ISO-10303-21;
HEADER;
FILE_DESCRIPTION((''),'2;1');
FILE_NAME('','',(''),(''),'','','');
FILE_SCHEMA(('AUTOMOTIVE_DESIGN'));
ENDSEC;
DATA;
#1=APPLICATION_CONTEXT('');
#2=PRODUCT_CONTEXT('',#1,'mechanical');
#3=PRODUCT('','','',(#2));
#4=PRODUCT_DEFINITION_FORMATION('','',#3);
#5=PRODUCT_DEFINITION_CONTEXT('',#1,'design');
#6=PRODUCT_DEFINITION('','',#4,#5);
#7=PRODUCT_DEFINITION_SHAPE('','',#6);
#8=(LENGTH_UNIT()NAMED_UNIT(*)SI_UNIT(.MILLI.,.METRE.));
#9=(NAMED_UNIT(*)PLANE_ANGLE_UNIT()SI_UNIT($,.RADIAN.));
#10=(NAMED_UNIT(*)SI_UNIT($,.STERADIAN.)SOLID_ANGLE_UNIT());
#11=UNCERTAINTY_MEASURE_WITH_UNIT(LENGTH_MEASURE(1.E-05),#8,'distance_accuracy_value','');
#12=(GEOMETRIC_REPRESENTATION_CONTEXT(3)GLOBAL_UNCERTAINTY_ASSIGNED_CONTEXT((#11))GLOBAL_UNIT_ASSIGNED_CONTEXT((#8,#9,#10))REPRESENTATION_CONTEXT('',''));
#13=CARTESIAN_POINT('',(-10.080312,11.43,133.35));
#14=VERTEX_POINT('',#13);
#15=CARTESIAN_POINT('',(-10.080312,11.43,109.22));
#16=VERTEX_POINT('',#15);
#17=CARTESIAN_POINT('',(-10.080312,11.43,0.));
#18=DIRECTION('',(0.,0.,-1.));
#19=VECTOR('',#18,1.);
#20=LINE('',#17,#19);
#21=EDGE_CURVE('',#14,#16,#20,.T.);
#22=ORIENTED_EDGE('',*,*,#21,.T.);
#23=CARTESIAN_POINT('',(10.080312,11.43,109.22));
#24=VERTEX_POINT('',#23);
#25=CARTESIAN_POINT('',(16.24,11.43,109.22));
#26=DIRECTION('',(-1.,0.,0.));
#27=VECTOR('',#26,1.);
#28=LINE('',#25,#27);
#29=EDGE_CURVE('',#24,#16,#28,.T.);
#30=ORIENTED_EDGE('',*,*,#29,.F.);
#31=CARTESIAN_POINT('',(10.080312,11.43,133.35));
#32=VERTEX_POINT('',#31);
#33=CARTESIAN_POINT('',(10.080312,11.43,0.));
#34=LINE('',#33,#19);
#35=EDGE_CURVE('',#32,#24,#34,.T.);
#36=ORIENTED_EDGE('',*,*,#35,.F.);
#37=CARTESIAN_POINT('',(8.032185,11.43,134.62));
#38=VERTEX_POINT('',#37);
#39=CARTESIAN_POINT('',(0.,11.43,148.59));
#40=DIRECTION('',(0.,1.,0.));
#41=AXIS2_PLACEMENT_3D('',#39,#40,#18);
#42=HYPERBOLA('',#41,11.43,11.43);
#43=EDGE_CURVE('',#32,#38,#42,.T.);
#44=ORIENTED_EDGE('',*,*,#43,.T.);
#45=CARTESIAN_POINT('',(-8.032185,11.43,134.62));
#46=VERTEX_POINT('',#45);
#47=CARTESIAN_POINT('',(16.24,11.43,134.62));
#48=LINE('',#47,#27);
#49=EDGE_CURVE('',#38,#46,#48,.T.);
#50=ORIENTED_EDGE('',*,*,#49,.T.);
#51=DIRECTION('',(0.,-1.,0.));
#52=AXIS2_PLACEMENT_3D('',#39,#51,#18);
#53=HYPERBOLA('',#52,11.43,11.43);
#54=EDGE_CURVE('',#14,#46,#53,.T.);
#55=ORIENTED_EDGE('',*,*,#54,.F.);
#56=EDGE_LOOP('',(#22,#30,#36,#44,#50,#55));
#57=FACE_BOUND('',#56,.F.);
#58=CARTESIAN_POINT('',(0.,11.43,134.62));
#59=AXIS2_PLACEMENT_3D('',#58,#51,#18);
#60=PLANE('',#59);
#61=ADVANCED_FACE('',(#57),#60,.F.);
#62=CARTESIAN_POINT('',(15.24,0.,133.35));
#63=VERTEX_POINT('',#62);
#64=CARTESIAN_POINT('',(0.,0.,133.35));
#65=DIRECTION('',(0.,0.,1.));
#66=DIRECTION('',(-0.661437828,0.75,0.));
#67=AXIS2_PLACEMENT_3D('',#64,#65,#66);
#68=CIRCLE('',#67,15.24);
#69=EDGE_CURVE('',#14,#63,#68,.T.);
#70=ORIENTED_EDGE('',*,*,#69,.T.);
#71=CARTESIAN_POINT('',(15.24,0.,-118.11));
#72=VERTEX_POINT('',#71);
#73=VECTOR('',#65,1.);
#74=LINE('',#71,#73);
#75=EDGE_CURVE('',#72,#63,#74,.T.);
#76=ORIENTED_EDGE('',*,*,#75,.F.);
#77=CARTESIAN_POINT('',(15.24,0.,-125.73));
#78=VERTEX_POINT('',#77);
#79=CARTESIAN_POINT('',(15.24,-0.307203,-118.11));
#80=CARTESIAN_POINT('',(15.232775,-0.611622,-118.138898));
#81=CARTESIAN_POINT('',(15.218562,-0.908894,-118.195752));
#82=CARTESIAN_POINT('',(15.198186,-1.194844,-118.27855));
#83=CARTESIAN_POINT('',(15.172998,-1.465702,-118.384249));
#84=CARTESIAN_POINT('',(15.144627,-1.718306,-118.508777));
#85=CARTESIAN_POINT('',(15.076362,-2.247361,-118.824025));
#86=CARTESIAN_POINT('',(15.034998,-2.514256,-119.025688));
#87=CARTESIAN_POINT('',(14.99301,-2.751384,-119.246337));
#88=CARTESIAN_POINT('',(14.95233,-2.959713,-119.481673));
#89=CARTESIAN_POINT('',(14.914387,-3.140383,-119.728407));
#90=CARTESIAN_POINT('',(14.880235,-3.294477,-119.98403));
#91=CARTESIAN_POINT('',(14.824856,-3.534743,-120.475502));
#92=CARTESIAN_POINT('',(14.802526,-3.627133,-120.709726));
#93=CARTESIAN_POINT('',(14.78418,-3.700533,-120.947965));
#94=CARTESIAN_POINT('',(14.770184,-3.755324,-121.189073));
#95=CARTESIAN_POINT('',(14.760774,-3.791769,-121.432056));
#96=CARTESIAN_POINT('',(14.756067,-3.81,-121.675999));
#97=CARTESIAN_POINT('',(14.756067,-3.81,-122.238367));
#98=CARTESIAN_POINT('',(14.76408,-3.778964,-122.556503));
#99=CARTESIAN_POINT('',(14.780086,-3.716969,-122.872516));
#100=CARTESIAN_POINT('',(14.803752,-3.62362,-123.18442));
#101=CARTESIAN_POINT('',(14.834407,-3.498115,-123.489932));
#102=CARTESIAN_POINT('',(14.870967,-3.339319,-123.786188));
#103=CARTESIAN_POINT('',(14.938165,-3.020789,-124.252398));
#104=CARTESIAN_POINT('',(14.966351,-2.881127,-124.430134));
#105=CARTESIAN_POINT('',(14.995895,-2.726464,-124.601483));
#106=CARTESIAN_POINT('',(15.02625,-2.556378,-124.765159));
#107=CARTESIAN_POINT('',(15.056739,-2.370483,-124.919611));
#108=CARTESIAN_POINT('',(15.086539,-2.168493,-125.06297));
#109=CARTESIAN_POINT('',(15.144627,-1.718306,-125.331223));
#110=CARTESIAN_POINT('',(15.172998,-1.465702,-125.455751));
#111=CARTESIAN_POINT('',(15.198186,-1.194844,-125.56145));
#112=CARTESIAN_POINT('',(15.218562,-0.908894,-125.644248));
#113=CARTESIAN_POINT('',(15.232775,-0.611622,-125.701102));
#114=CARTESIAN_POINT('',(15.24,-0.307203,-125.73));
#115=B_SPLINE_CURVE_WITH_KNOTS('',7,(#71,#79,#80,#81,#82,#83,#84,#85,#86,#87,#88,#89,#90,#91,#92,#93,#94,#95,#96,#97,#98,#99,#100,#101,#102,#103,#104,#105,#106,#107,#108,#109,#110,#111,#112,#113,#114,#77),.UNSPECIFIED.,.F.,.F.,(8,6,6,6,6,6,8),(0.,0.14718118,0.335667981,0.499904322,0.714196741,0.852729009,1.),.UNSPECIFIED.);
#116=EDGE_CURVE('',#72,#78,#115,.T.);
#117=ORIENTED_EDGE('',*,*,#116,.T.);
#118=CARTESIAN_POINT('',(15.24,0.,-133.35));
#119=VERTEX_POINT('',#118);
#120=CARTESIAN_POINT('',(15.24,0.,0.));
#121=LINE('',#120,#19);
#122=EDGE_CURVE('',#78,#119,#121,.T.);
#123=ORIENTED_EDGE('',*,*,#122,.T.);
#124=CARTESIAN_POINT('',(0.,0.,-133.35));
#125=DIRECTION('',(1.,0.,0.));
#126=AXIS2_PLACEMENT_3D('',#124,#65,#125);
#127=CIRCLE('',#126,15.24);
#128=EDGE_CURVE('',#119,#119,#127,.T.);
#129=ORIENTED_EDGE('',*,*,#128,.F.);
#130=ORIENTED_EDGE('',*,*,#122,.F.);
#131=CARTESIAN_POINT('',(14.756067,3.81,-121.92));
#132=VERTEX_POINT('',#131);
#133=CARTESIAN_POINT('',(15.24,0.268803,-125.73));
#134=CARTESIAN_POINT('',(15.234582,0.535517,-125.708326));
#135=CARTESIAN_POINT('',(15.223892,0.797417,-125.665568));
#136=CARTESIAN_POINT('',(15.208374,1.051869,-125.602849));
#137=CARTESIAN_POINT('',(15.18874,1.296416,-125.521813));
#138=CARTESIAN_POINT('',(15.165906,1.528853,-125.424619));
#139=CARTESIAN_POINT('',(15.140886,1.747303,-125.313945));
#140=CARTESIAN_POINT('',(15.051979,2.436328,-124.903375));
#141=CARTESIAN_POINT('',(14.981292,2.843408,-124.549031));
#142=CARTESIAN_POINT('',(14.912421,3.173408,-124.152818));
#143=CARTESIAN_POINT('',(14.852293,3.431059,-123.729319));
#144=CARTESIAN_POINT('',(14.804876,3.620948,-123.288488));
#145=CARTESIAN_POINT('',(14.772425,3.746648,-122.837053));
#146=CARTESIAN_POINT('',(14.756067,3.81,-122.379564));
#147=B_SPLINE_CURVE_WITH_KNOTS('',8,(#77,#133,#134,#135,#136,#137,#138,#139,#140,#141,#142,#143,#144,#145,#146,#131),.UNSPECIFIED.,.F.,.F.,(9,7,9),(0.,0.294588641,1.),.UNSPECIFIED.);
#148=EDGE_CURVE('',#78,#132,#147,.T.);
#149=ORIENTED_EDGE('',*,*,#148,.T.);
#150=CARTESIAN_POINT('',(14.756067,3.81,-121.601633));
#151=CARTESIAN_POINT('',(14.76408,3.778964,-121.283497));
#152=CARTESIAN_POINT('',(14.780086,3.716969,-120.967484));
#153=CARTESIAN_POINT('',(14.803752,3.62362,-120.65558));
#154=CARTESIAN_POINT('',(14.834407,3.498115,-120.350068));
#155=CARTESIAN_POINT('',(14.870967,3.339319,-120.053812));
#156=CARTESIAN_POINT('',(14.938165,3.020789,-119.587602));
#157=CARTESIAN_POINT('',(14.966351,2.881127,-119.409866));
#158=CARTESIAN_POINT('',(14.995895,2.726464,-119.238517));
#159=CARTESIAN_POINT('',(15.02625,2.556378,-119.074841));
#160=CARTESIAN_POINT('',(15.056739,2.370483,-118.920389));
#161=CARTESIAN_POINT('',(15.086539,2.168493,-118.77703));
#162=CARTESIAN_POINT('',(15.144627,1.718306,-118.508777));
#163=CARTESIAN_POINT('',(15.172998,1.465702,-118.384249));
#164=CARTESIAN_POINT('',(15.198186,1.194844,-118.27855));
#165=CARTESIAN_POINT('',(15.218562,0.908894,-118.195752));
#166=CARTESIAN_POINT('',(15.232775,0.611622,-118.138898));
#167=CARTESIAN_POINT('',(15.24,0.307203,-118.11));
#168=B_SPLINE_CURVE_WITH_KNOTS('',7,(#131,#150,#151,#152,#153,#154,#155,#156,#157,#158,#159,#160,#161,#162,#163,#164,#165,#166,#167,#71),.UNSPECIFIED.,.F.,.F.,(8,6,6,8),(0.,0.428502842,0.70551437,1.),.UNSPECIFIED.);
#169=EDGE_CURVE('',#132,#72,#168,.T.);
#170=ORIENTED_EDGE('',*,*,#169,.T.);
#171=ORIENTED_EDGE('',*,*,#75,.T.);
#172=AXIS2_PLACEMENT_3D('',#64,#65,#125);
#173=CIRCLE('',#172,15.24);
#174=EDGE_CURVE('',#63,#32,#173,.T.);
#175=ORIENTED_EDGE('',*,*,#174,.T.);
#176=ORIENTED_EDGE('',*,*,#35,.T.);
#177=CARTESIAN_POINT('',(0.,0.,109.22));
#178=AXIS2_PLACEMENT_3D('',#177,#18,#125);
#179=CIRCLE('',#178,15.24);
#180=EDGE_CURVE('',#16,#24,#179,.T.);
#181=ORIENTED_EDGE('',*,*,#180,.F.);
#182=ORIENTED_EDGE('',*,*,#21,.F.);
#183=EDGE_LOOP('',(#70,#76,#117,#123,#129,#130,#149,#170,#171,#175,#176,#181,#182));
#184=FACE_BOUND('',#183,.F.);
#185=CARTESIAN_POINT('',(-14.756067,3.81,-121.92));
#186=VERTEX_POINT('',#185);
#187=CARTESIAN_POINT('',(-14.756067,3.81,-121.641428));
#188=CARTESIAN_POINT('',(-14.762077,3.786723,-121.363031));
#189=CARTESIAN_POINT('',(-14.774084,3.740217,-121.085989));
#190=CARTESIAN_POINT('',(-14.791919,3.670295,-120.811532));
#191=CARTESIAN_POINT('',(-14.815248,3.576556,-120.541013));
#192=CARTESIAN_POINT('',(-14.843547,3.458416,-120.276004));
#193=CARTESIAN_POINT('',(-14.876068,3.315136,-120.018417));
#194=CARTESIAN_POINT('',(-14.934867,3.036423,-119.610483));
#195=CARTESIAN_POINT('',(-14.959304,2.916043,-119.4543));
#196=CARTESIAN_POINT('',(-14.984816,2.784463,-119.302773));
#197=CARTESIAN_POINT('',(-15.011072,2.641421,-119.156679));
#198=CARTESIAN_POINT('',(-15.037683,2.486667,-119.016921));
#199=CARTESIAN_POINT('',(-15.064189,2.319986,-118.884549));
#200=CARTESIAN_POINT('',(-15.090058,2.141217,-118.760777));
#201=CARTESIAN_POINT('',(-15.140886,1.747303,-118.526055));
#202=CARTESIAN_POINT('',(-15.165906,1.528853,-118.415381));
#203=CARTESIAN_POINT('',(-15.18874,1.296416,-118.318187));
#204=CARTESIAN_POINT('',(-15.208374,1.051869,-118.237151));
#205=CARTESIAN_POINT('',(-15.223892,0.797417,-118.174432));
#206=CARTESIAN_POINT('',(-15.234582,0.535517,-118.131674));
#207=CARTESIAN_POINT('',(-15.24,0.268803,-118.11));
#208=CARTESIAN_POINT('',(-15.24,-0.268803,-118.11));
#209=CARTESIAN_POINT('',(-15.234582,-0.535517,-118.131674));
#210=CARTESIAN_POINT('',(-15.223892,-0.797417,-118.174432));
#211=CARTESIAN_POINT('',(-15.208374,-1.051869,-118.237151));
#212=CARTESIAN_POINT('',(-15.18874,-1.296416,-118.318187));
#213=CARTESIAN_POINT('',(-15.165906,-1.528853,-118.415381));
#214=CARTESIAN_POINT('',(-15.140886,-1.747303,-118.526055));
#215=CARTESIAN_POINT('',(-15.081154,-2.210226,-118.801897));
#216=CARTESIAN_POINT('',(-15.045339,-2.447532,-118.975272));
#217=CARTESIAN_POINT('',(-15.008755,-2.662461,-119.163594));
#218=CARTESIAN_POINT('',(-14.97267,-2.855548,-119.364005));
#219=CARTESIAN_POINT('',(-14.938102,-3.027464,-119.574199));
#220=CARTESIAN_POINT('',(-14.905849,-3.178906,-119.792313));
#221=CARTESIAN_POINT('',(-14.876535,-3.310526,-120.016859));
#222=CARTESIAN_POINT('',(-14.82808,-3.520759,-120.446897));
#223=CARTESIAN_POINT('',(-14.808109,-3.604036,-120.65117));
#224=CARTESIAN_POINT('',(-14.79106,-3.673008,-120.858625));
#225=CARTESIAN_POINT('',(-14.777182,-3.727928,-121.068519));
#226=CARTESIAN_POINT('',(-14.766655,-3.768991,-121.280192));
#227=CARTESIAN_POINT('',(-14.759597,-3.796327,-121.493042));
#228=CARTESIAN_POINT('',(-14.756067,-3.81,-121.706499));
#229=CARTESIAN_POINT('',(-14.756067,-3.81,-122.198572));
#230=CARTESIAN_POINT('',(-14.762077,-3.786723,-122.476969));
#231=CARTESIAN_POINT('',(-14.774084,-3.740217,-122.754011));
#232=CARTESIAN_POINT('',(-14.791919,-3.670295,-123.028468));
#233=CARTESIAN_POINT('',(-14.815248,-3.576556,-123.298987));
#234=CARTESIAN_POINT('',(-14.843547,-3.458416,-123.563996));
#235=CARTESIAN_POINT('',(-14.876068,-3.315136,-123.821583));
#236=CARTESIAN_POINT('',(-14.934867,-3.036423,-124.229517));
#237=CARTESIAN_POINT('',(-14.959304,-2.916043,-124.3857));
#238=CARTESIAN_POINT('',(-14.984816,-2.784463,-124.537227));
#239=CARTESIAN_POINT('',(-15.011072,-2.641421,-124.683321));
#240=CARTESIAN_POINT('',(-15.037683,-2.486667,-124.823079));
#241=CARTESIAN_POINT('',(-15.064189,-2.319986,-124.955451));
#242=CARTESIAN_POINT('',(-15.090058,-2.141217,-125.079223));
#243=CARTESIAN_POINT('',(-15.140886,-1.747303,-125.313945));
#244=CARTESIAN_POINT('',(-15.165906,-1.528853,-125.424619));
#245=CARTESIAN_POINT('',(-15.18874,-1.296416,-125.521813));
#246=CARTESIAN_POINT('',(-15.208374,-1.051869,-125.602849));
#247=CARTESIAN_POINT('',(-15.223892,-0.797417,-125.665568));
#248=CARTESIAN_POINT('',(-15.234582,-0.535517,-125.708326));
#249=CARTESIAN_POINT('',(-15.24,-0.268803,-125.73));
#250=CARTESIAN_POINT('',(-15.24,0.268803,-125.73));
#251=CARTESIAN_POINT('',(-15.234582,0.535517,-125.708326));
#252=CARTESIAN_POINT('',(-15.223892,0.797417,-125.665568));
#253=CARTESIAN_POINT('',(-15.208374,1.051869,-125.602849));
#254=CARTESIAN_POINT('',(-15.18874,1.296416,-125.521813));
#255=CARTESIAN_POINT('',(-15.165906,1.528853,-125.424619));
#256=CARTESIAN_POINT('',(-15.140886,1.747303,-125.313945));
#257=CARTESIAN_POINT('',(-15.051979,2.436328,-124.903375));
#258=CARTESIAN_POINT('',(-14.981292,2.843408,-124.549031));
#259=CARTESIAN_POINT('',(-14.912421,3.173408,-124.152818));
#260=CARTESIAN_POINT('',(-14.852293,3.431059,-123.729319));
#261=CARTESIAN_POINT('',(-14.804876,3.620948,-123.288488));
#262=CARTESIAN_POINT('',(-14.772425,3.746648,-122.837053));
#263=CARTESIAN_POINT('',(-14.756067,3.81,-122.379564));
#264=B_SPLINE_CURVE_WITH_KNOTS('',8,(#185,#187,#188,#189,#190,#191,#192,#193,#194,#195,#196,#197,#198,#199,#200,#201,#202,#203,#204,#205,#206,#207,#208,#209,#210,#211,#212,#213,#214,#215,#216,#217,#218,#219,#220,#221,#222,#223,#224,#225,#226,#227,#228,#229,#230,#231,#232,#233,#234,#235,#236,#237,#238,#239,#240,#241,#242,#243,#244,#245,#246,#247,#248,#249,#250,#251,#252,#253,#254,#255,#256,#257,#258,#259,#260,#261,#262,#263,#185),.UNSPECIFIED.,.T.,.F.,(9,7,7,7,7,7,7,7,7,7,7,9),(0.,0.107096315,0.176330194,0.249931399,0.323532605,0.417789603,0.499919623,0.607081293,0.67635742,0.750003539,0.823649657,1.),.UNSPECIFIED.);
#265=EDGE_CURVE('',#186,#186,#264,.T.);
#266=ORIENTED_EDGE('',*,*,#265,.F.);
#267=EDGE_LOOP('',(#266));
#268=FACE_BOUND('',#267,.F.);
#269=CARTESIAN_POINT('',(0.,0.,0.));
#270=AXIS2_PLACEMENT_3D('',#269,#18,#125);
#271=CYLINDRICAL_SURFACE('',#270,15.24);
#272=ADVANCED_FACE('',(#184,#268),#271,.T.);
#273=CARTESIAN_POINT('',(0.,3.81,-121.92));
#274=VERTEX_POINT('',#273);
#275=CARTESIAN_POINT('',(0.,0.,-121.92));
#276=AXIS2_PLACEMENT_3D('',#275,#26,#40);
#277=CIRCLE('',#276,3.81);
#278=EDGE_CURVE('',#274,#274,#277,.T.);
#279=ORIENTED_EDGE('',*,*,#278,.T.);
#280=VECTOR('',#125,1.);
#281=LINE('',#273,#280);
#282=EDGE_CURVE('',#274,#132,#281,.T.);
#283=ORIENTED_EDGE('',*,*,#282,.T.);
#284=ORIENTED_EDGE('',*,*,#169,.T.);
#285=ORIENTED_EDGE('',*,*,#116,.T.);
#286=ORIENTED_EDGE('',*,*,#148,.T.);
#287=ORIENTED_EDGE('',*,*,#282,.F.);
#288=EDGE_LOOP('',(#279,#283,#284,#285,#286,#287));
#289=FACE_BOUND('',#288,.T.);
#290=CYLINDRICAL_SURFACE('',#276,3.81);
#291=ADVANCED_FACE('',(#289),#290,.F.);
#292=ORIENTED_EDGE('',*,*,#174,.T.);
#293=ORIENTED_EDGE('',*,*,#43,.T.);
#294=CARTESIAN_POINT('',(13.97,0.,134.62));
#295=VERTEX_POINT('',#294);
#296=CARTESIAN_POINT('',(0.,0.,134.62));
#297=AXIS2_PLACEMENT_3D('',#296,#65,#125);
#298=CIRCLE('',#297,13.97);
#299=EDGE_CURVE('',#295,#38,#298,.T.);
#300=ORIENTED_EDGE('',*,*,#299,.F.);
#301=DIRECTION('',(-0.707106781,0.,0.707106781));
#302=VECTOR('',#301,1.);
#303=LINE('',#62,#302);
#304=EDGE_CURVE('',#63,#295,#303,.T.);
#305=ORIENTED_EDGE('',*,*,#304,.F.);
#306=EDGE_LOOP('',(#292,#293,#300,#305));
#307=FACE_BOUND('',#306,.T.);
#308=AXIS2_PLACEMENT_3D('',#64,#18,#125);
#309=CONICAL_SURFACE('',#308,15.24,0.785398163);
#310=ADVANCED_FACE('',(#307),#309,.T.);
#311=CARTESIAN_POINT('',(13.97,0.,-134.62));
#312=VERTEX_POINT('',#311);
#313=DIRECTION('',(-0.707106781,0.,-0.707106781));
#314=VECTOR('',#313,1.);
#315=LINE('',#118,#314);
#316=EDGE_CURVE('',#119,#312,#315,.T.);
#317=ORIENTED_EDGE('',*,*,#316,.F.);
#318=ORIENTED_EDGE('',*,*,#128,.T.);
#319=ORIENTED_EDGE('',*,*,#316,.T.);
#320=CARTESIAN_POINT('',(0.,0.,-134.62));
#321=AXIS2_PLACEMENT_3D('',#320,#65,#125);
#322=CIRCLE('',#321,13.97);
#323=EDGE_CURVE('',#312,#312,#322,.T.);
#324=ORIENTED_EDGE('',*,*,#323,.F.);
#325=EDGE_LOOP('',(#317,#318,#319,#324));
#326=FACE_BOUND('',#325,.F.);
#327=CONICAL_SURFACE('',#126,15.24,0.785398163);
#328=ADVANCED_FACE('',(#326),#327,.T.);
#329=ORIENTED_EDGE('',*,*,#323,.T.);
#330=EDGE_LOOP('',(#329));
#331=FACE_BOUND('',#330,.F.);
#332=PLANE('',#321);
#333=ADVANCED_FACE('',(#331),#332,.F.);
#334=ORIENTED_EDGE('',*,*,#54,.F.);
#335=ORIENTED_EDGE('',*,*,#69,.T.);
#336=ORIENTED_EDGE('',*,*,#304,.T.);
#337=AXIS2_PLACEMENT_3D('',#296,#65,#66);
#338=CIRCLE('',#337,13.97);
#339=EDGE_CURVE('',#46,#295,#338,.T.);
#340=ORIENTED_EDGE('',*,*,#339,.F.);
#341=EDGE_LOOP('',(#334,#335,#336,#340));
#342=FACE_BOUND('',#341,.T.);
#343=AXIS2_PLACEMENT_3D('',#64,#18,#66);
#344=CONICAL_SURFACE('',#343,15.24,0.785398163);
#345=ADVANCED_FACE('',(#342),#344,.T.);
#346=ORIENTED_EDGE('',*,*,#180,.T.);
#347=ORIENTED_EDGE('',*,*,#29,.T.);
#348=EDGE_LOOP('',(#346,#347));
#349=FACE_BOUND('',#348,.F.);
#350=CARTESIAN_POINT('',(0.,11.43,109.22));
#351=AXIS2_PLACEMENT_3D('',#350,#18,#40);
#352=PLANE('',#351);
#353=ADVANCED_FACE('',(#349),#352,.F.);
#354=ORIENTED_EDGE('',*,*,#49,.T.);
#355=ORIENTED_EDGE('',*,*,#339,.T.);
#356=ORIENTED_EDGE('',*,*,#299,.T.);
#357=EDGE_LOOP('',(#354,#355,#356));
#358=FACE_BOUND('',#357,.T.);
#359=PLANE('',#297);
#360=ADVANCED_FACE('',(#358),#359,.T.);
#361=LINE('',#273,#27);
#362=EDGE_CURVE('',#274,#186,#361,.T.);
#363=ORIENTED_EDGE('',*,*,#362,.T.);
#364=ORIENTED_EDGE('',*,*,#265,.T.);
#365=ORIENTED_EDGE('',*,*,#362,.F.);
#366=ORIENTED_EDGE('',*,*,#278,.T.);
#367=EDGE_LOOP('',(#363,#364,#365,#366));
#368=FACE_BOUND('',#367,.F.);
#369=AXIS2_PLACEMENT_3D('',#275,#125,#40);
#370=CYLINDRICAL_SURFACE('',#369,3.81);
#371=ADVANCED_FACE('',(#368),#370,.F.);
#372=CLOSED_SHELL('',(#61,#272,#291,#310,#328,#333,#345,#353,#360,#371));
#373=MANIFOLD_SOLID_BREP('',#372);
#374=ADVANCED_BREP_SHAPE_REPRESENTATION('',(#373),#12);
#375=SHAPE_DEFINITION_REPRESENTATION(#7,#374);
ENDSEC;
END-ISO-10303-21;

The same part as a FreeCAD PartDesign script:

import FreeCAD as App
import Part
import Sketcher

V = App.Vector
Q = App.Units.Quantity


def edges_at(feature, points):
    """Names of the edges that pass closest to the given points."""
    edges = feature.Shape.Edges
    near = lambda p: min(range(len(edges)), key=lambda i: edges[i].distToShape(Part.Vertex(*p))[0])
    return sorted({f"Edge{near(p) + 1}" for p in points})


def add_polygon(sketch, points):
    """Adds a closed chain of lines whose ends are joined by coincident constraints."""
    first, n = sketch.GeometryCount, len(points)
    for a, b in zip(points, points[1:] + points[:1]):
        sketch.addGeometry(Part.LineSegment(App.Vector(*a, 0), App.Vector(*b, 0)), False)
    for i in range(n):
        sketch.addConstraint(Sketcher.Constraint("Coincident", first + i, 2, first + (i + 1) % n, 1))

doc = App.newDocument("Part")
body = doc.addObject("PartDesign::Body", "Body")

# Sketch on XY plane
sketch1 = body.newObject("Sketcher::SketchObject", "Sketch")
sketch1.AttachmentSupport = (doc.getObject("XY_Plane"), [""])
sketch1.MapMode = "FlatFace"
sketch1.addGeometry(Part.Circle(V(0, 0, 0), V(0, 0, 1), 15), False)
sketch1.addConstraint([
    Sketcher.Constraint("Coincident", 0, 3, -1, 1),
    Sketcher.Constraint("Diameter", 0, Q("1.2 in")),
])
pad1 = body.newObject("PartDesign::Pad", "Pad")
pad1.Profile = sketch1
pad1.Length = Q("10.6 in")
pad1.Midplane = True

# Sketch on YZ plane
sketch2 = body.newObject("Sketcher::SketchObject", "Sketch001")
sketch2.AttachmentSupport = (doc.getObject("YZ_Plane"), [""])
sketch2.MapMode = "FlatFace"
add_polygon(sketch2, [(11.4, 109.2), (19.6, 109.2), (19.6, 134.6), (11.4, 134.6)])  # lines 0-3
sketch2.addGeometry(Part.Circle(V(0, -121.9, 0), V(0, 0, 1), 3.8), False)  # 4
sketch2.addConstraint([
    Sketcher.Constraint("Horizontal", 0),
    Sketcher.Constraint("Vertical", 1),
    Sketcher.Constraint("Horizontal", 2),
    Sketcher.Constraint("Vertical", 3),
    Sketcher.Constraint("PointOnObject", 4, 3, -2),
    Sketcher.Constraint("Diameter", 4, Q("0.3 in")),
    Sketcher.Constraint("DistanceY", 1, 1, 1, 2, Q("1 in")),
    Sketcher.Constraint("DistanceX", 0, 1, 0, 2, Q("0.32 in")),
    Sketcher.Constraint("DistanceX", -1, 1, 2, 2, Q("0.45 in")),
    Sketcher.Constraint("DistanceY", 4, 3, -1, 1, Q("4.8 in")),
    Sketcher.Constraint("DistanceY", -1, 1, 0, 2, Q("4.3 in")),
])
pocket1 = body.newObject("PartDesign::Pocket", "Pocket")
pocket1.Profile = sketch2
pocket1.Type = "ThroughAll"
pocket1.Midplane = True
doc.recompute()

chamfer = body.newObject("PartDesign::Chamfer", "Chamfer")
chamfer.Base = (pocket1, edges_at(pocket1, [(13.89, 6.27, 134.62), (-6.27, -13.89, 134.62), (-15.24, 0, -134.62)]))
chamfer.Size = Q("0.05 in")

doc.recompute()
